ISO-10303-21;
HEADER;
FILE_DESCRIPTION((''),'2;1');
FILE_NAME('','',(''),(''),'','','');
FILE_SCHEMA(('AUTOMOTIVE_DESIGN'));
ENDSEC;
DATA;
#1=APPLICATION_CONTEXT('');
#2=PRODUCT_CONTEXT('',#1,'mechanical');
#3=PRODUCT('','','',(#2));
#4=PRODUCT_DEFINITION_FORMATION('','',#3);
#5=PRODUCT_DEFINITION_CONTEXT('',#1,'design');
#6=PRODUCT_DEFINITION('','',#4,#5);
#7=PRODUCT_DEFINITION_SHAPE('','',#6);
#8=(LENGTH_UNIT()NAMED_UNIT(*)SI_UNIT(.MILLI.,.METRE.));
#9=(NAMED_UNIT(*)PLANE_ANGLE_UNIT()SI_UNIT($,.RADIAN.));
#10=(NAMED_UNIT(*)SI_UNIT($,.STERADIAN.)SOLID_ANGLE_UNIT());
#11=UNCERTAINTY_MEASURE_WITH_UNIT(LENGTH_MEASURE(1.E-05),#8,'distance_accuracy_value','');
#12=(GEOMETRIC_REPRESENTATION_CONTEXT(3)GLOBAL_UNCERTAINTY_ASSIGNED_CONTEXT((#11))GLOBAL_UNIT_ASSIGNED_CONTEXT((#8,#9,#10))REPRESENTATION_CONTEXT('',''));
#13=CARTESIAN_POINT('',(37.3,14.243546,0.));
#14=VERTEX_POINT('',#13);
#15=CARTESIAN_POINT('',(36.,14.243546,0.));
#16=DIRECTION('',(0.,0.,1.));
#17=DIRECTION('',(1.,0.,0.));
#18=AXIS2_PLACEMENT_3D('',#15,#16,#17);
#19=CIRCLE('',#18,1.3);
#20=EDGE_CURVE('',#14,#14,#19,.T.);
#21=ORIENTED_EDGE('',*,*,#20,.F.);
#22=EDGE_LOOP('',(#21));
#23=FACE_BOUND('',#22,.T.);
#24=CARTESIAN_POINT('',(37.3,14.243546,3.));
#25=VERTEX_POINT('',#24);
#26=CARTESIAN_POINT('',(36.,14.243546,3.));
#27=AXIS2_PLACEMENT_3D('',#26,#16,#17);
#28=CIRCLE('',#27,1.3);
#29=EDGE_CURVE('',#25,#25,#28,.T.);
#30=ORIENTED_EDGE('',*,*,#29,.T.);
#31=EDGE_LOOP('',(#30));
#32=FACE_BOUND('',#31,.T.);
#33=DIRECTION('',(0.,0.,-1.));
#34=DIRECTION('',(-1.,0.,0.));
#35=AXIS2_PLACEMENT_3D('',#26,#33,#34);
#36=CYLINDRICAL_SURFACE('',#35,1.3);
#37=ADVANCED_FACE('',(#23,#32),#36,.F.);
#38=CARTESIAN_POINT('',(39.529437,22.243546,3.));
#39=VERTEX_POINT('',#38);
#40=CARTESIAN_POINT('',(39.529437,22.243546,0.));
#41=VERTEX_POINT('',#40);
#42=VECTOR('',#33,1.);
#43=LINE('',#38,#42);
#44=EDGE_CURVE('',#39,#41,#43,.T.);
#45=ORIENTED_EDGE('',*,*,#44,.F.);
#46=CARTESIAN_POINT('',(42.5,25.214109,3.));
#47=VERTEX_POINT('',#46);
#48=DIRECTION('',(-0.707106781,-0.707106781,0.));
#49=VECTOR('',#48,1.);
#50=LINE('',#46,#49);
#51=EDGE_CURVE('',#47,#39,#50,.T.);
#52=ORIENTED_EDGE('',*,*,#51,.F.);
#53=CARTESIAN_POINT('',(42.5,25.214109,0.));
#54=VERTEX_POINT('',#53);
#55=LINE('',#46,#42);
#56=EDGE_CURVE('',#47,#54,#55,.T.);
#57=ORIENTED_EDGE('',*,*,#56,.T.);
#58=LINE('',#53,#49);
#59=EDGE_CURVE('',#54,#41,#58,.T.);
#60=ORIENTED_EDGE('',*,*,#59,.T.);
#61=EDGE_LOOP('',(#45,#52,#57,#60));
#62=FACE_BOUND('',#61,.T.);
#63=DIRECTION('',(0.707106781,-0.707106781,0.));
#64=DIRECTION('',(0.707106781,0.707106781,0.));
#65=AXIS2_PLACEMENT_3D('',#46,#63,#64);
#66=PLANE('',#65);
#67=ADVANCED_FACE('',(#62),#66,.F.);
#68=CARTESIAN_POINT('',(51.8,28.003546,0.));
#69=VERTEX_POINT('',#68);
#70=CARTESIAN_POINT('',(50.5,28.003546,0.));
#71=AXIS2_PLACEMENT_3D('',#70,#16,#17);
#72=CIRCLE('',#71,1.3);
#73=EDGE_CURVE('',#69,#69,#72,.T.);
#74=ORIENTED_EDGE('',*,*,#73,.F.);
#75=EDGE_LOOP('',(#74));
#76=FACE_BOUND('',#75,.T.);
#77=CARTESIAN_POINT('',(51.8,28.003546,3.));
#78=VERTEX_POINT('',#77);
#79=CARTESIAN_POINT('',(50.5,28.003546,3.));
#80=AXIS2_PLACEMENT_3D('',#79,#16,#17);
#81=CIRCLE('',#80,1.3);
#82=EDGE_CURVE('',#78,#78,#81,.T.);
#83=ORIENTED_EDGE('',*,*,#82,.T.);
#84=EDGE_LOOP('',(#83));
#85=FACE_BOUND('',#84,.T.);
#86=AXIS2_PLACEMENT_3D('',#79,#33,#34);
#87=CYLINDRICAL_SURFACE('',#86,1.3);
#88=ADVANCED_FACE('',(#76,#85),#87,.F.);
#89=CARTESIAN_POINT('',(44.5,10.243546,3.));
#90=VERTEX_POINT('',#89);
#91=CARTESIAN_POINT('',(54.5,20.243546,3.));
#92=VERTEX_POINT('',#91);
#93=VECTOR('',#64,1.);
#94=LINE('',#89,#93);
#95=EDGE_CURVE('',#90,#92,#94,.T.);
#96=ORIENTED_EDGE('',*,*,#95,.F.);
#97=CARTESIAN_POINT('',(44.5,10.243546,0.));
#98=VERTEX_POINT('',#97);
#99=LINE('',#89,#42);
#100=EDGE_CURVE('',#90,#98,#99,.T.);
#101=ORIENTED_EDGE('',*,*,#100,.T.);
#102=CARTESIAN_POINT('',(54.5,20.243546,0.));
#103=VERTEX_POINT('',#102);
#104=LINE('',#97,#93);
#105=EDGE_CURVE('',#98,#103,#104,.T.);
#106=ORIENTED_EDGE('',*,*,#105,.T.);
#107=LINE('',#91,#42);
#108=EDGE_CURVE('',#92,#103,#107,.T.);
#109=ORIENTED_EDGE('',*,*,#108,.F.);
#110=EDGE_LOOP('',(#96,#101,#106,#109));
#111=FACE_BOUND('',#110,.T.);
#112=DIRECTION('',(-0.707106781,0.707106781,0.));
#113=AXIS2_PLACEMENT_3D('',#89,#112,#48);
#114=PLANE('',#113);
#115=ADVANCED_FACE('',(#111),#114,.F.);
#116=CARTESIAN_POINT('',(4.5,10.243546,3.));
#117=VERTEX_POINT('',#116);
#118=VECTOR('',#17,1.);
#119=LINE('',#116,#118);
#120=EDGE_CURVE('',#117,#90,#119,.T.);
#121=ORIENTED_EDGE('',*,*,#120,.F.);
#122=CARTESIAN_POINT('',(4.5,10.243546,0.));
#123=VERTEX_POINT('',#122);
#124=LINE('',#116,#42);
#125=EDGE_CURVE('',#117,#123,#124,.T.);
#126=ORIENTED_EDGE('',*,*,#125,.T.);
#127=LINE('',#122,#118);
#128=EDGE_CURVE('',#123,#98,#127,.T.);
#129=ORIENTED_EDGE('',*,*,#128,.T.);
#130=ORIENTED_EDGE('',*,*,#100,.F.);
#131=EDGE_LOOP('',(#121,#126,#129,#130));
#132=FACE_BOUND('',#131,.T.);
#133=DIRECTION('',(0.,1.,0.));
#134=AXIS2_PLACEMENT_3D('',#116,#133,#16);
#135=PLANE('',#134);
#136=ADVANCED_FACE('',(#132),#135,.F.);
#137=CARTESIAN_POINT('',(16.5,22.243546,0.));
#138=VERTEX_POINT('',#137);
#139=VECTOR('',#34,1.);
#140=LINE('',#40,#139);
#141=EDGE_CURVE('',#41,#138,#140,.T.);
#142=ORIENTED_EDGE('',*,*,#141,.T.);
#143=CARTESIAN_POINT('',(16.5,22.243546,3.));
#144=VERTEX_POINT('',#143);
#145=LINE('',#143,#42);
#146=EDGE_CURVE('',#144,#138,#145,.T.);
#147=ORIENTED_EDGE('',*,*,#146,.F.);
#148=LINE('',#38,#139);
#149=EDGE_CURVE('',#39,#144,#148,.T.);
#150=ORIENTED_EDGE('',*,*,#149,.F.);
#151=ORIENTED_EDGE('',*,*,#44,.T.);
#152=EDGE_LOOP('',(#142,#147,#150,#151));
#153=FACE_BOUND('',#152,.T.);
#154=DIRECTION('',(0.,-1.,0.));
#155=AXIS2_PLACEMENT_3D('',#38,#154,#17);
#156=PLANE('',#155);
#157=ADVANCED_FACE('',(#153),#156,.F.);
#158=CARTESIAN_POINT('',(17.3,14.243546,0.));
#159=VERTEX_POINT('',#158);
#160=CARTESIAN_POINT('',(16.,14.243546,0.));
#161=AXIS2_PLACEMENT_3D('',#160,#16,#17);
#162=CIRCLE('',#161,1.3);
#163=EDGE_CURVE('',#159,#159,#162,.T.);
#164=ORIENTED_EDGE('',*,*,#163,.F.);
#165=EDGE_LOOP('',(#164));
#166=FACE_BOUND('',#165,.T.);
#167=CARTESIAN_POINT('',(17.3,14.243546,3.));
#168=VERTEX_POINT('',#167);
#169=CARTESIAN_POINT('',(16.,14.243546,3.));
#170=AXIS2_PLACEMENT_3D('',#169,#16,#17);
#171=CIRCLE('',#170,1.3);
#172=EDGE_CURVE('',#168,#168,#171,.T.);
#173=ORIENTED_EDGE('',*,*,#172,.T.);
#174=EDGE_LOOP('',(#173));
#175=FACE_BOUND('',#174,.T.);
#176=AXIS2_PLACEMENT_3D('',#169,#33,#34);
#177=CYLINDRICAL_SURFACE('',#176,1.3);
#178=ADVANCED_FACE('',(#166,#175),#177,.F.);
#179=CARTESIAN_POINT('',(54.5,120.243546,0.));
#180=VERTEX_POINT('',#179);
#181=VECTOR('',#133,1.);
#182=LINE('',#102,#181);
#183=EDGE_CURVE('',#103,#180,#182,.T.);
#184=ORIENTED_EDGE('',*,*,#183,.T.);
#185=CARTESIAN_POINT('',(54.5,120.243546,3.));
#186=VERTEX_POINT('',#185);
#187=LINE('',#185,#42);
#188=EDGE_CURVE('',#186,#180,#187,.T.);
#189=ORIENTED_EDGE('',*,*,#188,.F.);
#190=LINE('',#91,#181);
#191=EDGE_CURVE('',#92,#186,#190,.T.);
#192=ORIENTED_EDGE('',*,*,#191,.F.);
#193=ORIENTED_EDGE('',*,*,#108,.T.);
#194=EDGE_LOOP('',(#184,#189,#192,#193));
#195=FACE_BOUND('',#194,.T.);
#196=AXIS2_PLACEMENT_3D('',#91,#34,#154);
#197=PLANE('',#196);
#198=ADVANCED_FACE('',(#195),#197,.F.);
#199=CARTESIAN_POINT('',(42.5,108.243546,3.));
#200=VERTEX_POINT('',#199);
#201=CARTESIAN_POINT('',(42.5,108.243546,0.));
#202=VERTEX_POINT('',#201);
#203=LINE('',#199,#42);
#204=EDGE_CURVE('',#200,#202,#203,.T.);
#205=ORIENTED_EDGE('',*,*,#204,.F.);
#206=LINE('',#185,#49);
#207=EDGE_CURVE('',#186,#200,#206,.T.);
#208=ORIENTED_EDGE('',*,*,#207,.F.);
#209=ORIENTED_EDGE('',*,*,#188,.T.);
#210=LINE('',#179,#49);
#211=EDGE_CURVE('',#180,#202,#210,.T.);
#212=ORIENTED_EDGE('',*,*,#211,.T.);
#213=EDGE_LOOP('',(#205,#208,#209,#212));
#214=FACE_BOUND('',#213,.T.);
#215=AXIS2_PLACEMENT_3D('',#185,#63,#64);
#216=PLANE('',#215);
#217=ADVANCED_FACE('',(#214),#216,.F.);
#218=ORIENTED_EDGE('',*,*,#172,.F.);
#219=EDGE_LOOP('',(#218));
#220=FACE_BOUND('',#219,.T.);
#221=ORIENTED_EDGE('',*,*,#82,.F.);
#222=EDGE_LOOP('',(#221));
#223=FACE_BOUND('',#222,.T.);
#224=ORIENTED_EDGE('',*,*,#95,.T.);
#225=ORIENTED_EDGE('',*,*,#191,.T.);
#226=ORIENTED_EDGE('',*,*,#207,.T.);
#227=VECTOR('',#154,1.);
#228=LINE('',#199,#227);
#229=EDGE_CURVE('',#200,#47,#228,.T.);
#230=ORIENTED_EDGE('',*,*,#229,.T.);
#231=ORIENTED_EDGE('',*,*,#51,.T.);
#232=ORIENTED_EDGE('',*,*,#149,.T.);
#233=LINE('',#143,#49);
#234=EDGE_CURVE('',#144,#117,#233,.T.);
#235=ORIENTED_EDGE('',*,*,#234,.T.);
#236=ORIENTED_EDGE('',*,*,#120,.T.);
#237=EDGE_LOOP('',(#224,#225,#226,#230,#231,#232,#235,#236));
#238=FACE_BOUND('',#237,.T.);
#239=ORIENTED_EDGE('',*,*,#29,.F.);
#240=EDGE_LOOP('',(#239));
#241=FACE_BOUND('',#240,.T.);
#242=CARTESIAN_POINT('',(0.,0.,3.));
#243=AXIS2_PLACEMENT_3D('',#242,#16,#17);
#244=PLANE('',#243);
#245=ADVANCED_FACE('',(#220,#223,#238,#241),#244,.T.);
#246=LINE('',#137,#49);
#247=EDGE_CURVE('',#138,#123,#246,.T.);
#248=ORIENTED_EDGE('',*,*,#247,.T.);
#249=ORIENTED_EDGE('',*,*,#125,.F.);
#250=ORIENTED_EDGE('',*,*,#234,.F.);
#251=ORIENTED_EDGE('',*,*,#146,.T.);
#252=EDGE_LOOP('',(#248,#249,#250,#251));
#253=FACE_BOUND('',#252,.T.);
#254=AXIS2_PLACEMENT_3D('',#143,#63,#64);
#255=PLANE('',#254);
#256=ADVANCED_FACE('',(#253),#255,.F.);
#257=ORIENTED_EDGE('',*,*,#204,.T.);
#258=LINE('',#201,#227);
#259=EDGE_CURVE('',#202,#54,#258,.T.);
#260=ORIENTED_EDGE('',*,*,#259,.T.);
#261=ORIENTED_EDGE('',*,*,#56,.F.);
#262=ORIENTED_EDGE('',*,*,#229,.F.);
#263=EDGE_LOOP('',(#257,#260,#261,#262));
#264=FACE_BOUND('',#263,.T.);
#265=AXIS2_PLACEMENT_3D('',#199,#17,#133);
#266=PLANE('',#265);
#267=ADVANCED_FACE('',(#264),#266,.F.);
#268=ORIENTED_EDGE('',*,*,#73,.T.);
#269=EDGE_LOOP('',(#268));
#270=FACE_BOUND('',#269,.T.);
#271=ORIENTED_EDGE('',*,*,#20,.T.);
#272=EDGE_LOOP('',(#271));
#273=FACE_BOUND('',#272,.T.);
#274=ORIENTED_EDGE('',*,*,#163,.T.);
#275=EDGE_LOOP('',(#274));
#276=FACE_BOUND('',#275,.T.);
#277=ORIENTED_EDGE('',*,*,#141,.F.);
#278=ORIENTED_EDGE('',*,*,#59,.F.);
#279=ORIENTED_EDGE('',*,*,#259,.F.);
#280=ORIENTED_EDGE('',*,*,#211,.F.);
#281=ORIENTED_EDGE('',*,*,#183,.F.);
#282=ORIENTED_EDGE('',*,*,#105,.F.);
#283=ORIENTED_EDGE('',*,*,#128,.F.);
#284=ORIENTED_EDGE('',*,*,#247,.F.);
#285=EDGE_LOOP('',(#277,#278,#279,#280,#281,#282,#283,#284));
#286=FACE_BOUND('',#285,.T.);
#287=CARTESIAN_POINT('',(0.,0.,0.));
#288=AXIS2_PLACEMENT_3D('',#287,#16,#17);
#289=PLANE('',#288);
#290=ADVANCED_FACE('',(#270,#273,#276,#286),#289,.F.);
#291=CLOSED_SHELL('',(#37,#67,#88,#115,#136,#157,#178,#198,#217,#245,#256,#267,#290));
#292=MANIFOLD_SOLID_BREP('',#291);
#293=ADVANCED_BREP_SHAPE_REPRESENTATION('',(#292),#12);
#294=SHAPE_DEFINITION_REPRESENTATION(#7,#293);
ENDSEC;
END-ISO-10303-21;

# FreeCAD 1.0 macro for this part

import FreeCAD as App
import Part
import Sketcher
from FreeCAD import Vector
Q = App.Units.Quantity

doc = App.newDocument("Part")
params = doc.addObject("Spreadsheet::Sheet", "Params")
for row, (alias, value) in enumerate([
    ("sketch1_diameter", "2.6 mm"),
    ("sketch1_width", "40 mm"),
    ("sketch1_height", "100 mm"),
    ("pad1_length", "3 mm"),
], start=1):
    params.set(f"A{row}", alias)
    params.set(f"B{row}", "=" + value)
    params.setAlias(f"B{row}", alias)

body = doc.addObject("PartDesign::Body", "Body")

sketch1 = doc.addObject("Sketcher::SketchObject", "Sketch")
body.addObject(sketch1)
sketch1.AttachmentSupport = (doc.XY_Plane, [""])
sketch1.MapMode = "FlatFace"
sketch1.addGeometry([
    Part.LineSegment(Vector(4.5, 10.2, 0), Vector(44.5, 10.2, 0)),
    Part.LineSegment(Vector(44.5, 10.2, 0), Vector(54.5, 20.2, 0)),
    Part.LineSegment(Vector(54.5, 20.2, 0), Vector(54.5, 120.2, 0)),
    Part.LineSegment(Vector(54.5, 120.2, 0), Vector(42.5, 108.2, 0)),
    Part.LineSegment(Vector(42.5, 108.2, 0), Vector(42.5, 25.2, 0)),
    Part.LineSegment(Vector(42.5, 25.2, 0), Vector(39.5, 22.2, 0)),
    Part.LineSegment(Vector(39.5, 22.2, 0), Vector(16.5, 22.2, 0)),
    Part.LineSegment(Vector(16.5, 22.2, 0), Vector(4.5, 10.2, 0)),
    Part.Circle(Vector(16, 14.2, 0), Vector(0, 0, 1), 1.3),
    Part.Circle(Vector(36, 14.2, 0), Vector(0, 0, 1), 1.3),
    Part.Circle(Vector(50.5, 28, 0), Vector(0, 0, 1), 1.3),
], False)
sketch1.addConstraint([
    Sketcher.Constraint("Coincident", 0, 2, 1, 1),
    Sketcher.Constraint("Coincident", 1, 2, 2, 1),
    Sketcher.Constraint("Coincident", 2, 2, 3, 1),
    Sketcher.Constraint("Coincident", 3, 2, 4, 1),
    Sketcher.Constraint("Coincident", 4, 2, 5, 1),
    Sketcher.Constraint("Coincident", 5, 2, 6, 1),
    Sketcher.Constraint("Coincident", 6, 2, 7, 1),
    Sketcher.Constraint("Coincident", 7, 2, 0, 1),
    Sketcher.Constraint("Horizontal", 0),
    Sketcher.Constraint("Vertical", 2),
    Sketcher.Constraint("Vertical", 4),
    Sketcher.Constraint("Horizontal", 6),
    Sketcher.Constraint("Equal", 8, 9),
    Sketcher.Constraint("Equal", 9, 10),
    Sketcher.Constraint("Parallel", 1, 3),
    Sketcher.Constraint("Parallel", 3, 5),
    Sketcher.Constraint("Parallel", 5, 7),
    Sketcher.Constraint("Horizontal", 8, 3, 9, 3),
    Sketcher.Constraint("Equal", 3, 7),
    Sketcher.Constraint("Diameter", 8, 2.6),
    Sketcher.Constraint("DistanceX", 0, 1, 0, 2, 40.0),
    Sketcher.Constraint("DistanceY", 2, 1, 2, 2, 100.0),
    Sketcher.Constraint("Angle", 1, Q("45 deg")),
    Sketcher.Constraint("DistanceX", -1, 1, 8, 3, 16.0),
    Sketcher.Constraint("DistanceX", -1, 1, 9, 3, 36.0),
    Sketcher.Constraint("DistanceY", 0, 2, 9, 3, 4.0),
    Sketcher.Constraint("DistanceX", 0, 2, 10, 3, 6.0),
    Sketcher.Constraint("DistanceX", 10, 3, 1, 2, 4.0),
    Sketcher.Constraint("DistanceX", 3, 2, 2, 2, 12.0),
    Sketcher.Constraint("DistanceX", -1, 1, 10, 3, 50.5),
    Sketcher.Constraint("DistanceY", 9, 3, 10, 3, 13.76),
    Sketcher.Constraint("Distance", 5, 4.20101),
    Sketcher.Constraint("DistanceY", -1, 1, 4, 2, 25.214109),
])
sketch1.setExpression("Constraints[19]", "Params.sketch1_diameter")
sketch1.setExpression("Constraints[20]", "Params.sketch1_width")
sketch1.setExpression("Constraints[21]", "Params.sketch1_height")
pad1 = doc.addObject("PartDesign::Pad", "Pad")
body.addObject(pad1)
pad1.Profile = sketch1
pad1.setExpression("Length", "Params.pad1_length")

doc.recompute()
